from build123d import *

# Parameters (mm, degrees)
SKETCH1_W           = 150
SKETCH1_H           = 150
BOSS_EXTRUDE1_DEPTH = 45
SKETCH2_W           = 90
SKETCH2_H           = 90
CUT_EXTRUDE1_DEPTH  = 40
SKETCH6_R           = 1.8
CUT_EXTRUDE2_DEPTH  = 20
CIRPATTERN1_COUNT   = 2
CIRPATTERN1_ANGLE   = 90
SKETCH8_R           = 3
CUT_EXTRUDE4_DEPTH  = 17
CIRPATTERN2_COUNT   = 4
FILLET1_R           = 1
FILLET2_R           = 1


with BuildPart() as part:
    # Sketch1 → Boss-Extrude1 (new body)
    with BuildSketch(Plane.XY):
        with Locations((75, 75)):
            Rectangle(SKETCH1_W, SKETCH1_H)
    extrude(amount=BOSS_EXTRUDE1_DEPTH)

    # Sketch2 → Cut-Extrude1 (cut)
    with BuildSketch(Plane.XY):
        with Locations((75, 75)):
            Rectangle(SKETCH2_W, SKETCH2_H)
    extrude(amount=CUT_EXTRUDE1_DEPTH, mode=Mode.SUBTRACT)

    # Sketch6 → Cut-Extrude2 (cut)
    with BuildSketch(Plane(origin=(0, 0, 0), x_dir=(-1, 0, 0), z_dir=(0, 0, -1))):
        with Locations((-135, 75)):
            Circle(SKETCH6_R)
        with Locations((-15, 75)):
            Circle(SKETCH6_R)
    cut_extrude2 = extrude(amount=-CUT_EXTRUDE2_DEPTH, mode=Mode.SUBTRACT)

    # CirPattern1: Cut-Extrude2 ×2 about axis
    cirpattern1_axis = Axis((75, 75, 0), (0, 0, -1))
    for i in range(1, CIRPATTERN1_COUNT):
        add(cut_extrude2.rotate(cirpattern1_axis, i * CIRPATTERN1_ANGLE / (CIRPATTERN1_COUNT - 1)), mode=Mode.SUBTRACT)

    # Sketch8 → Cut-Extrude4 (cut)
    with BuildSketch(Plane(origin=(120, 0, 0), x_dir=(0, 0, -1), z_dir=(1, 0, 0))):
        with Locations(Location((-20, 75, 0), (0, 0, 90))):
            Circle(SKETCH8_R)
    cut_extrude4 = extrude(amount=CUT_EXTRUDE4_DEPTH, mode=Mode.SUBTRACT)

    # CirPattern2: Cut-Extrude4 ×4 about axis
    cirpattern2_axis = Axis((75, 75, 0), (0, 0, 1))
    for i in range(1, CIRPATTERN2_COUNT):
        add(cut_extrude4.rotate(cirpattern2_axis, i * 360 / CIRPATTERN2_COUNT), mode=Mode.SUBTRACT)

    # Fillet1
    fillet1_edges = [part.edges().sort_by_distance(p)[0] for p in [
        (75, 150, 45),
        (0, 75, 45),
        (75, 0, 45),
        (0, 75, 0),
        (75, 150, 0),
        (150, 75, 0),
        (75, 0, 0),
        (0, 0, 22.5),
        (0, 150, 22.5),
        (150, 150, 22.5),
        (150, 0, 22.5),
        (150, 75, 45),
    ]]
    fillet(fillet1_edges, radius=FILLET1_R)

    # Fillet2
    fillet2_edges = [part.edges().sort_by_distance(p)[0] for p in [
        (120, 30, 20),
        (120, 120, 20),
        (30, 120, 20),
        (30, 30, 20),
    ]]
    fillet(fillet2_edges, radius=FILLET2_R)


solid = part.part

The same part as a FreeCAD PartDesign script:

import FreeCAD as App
import Part
import Sketcher
Q = App.Units.Quantity


def edges_at(feature, points):
    """Names of the edges that pass closest to the given points."""
    edges = feature.Shape.Edges
    near = lambda p: min(range(len(edges)), key=lambda i: edges[i].distToShape(Part.Vertex(*p))[0])
    return sorted({f"Edge{near(p) + 1}" for p in points})

doc = App.newDocument("Part")
body = doc.addObject("PartDesign::Body", "Body")

# Sketch on XY plane
sketch1 = body.newObject("Sketcher::SketchObject", "Sketch")
sketch1.AttachmentSupport = (doc.getObject("XY_Plane"), [""])
sketch1.MapMode = "FlatFace"
sketch1.addGeometry(Part.LineSegment(App.Vector(0, 150, 0), App.Vector(0, 0, 0)), False)
sketch1.addGeometry(Part.LineSegment(App.Vector(0, 0, 0), App.Vector(150, 0, 0)), False)
sketch1.addGeometry(Part.LineSegment(App.Vector(150, 0, 0), App.Vector(150, 150, 0)), False)
sketch1.addGeometry(Part.LineSegment(App.Vector(150, 150, 0), App.Vector(0, 150, 0)), False)
sketch1.addConstraint(Sketcher.Constraint("Coincident", 0, 2, 1, 1))
sketch1.addConstraint(Sketcher.Constraint("Coincident", 1, 2, 2, 1))
sketch1.addConstraint(Sketcher.Constraint("Coincident", 2, 2, 3, 1))
sketch1.addConstraint(Sketcher.Constraint("Coincident", 3, 2, 0, 1))
sketch1.addConstraint(Sketcher.Constraint("Vertical", 0))
sketch1.addConstraint(Sketcher.Constraint("Horizontal", 1))
sketch1.addConstraint(Sketcher.Constraint("Vertical", 2))
sketch1.addConstraint(Sketcher.Constraint("Horizontal", 3))
sketch1.addConstraint(Sketcher.Constraint("Coincident", 0, 2, -1, 1))
sketch1.addConstraint(Sketcher.Constraint("Equal", 3, 0))
sketch1.addConstraint(Sketcher.Constraint("DistanceX", 1, 1, 1, 2, Q("150 mm")))
pad1 = body.newObject("PartDesign::Pad", "Pad")
pad1.Profile = sketch1
pad1.Length = 45

# Sketch on XY plane
sketch2 = body.newObject("Sketcher::SketchObject", "Sketch001")
sketch2.AttachmentSupport = (doc.getObject("XY_Plane"), [""])
sketch2.MapMode = "FlatFace"
sketch2.addGeometry(Part.LineSegment(App.Vector(30, 120, 0), App.Vector(30, 30, 0)), False)
sketch2.addGeometry(Part.LineSegment(App.Vector(30, 30, 0), App.Vector(120, 30, 0)), False)
sketch2.addGeometry(Part.LineSegment(App.Vector(120, 30, 0), App.Vector(120, 120, 0)), False)
sketch2.addGeometry(Part.LineSegment(App.Vector(120, 120, 0), App.Vector(30, 120, 0)), False)
sketch2.addConstraint(Sketcher.Constraint("Coincident", 0, 2, 1, 1))
sketch2.addConstraint(Sketcher.Constraint("Coincident", 1, 2, 2, 1))
sketch2.addConstraint(Sketcher.Constraint("Coincident", 2, 2, 3, 1))
sketch2.addConstraint(Sketcher.Constraint("Coincident", 3, 2, 0, 1))
sketch2.addConstraint(Sketcher.Constraint("Vertical", 0))
sketch2.addConstraint(Sketcher.Constraint("Horizontal", 1))
sketch2.addConstraint(Sketcher.Constraint("Vertical", 2))
sketch2.addConstraint(Sketcher.Constraint("Horizontal", 3))
sketch2.addConstraint(Sketcher.Constraint("Equal", 3, 0))
sketch2.addConstraint(Sketcher.Constraint("DistanceX", 1, 1, 1, 2, Q("90 mm")))
sketch2.addConstraint(Sketcher.Constraint("DistanceX", -1, 1, 0, 2, Q("30 mm")))
sketch2.addConstraint(Sketcher.Constraint("DistanceY", -1, 1, 0, 2, Q("30 mm")))
pocket1 = body.newObject("PartDesign::Pocket", "Pocket")
pocket1.Profile = sketch2
pocket1.Length = 40
pocket1.Reversed = True

# Sketch on XY plane
sketch3 = body.newObject("Sketcher::SketchObject", "Sketch002")
sketch3.AttachmentSupport = (doc.getObject("XY_Plane"), [""])
sketch3.MapMode = "FlatFace"
sketch3.addGeometry(Part.Circle(App.Vector(135, 75, 0), App.Vector(0, 0, 1), 1.8), False)
sketch3.addGeometry(Part.Circle(App.Vector(15, 75, 0), App.Vector(0, 0, 1), 1.8), False)
sketch3.addConstraint(Sketcher.Constraint("Equal", 0, 1))
sketch3.addConstraint(Sketcher.Constraint("Horizontal", 0, 3, 1, 3))
sketch3.addConstraint(Sketcher.Constraint("Diameter", 0, Q("3.6 mm")))
sketch3.addConstraint(Sketcher.Constraint("DistanceX", -1, 1, 0, 3, Q("135 mm")))
sketch3.addConstraint(Sketcher.Constraint("DistanceY", -1, 1, 0, 3, Q("75 mm")))
sketch3.addConstraint(Sketcher.Constraint("DistanceX", -1, 1, 1, 3, Q("15 mm")))
pocket2 = body.newObject("PartDesign::Pocket", "Pocket001")
pocket2.Profile = sketch3
pocket2.Length = 20
pocket2.Reversed = True
doc.recompute()

datumline = body.newObject("PartDesign::Line", "DatumLine")
datumline.Placement = App.Placement(App.Vector(75, 75, 0), App.Rotation(App.Vector(0, 0, 1), App.Vector(0, 0, -1)))
polarpattern = body.newObject("PartDesign::PolarPattern", "PolarPattern")
polarpattern.Originals = [pocket2]
polarpattern.Axis = (datumline, [""])
polarpattern.Angle = 90
polarpattern.Occurrences = 2
body.Tip = polarpattern

# Sketch on YZ plane
sketch4 = body.newObject("Sketcher::SketchObject", "Sketch003")
sketch4.AttachmentSupport = (doc.getObject("YZ_Plane"), [""])
sketch4.MapMode = "FlatFace"
sketch4.AttachmentOffset = App.Placement(App.Vector(0, 0, 120), App.Rotation())
sketch4.addGeometry(Part.Circle(App.Vector(75, 20, 0), App.Vector(0, 0, 1), 3), False)
sketch4.addConstraint(Sketcher.Constraint("Diameter", 0, Q("6 mm")))
sketch4.addConstraint(Sketcher.Constraint("DistanceX", -1, 1, 0, 3, Q("75 mm")))
sketch4.addConstraint(Sketcher.Constraint("DistanceY", -1, 1, 0, 3, Q("20 mm")))
pocket3 = body.newObject("PartDesign::Pocket", "Pocket002")
pocket3.Profile = sketch4
pocket3.Length = 17
pocket3.Reversed = True
doc.recompute()

datumline2 = body.newObject("PartDesign::Line", "DatumLine001")
datumline2.Placement = App.Placement(App.Vector(75, 75, 0), App.Rotation(App.Vector(0, 0, 1), App.Vector(0, 0, 1)))
polarpattern2 = body.newObject("PartDesign::PolarPattern", "PolarPattern001")
polarpattern2.Originals = [pocket3]
polarpattern2.Axis = (datumline2, [""])
polarpattern2.Angle = 360
polarpattern2.Occurrences = 4
body.Tip = polarpattern2
doc.recompute()

fillet = body.newObject("PartDesign::Fillet", "Fillet")
fillet.Base = (polarpattern2, edges_at(polarpattern2, [
    (75, 150, 45),
    (0, 75, 45),
    (75, 0, 45),
    (0, 75, 0),
    (75, 150, 0),
    (150, 75, 0),
    (75, 0, 0),
    (0, 0, 22.5),
    (0, 150, 22.5),
    (150, 150, 22.5),
    (150, 0, 22.5),
    (150, 75, 45),
]))
fillet.Radius = 1
doc.recompute()

fillet2 = body.newObject("PartDesign::Fillet", "Fillet001")
fillet2.Base = (fillet, edges_at(fillet, [
    (120, 30, 20),
    (120, 120, 20),
    (30, 120, 20),
    (30, 30, 20),
]))
fillet2.Radius = 1

doc.recompute()
